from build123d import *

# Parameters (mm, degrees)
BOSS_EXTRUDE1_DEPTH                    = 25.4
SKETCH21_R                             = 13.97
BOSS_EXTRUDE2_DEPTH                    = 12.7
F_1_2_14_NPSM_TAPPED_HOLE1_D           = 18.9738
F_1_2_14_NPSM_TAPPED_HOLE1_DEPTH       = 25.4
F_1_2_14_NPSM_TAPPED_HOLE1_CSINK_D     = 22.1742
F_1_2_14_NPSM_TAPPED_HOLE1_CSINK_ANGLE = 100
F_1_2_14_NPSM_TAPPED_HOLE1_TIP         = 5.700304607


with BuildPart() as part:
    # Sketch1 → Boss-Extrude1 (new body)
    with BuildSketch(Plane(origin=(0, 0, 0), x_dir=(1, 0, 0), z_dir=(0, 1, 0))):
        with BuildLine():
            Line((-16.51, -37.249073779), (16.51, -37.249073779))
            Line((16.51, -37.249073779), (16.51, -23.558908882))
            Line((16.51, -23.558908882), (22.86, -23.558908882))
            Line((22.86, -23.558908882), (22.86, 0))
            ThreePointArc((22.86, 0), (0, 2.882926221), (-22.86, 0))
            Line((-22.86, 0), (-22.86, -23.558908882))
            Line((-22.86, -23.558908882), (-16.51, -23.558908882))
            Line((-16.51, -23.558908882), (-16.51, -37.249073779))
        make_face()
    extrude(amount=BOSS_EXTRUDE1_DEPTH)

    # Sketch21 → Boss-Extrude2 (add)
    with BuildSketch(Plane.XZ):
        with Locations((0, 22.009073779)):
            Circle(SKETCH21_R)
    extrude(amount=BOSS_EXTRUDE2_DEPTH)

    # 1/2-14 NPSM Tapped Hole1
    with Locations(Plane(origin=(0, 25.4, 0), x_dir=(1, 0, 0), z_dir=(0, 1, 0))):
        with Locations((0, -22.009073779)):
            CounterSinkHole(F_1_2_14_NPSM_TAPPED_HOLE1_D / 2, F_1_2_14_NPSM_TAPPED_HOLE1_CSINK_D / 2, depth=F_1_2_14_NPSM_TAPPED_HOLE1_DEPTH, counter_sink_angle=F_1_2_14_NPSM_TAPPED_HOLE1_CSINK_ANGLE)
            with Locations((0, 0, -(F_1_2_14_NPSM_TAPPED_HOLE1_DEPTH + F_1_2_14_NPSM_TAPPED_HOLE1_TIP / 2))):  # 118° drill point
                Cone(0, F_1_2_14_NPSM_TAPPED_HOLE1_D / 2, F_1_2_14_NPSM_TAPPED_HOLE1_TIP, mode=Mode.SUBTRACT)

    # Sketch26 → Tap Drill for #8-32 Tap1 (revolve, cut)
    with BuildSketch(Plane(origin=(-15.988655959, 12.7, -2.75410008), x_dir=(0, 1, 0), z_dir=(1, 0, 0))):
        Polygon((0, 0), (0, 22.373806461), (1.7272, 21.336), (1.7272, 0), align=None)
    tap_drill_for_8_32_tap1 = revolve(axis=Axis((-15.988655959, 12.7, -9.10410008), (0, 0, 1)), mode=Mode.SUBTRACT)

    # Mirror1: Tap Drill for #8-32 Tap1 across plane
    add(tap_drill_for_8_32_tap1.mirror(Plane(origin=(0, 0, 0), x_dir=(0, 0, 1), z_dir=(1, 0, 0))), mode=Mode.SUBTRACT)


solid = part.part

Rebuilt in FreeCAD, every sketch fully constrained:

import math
import FreeCAD as App
import Part
import Sketcher
Q = App.Units.Quantity


def add_polygon(sketch, points):
    """Adds a closed chain of lines whose ends are joined by coincident constraints."""
    first, n = sketch.GeometryCount, len(points)
    for a, b in zip(points, points[1:] + points[:1]):
        sketch.addGeometry(Part.LineSegment(App.Vector(*a, 0), App.Vector(*b, 0)), False)
    for i in range(n):
        sketch.addConstraint(Sketcher.Constraint("Coincident", first + i, 2, first + (i + 1) % n, 1))

doc = App.newDocument("Part")
body = doc.addObject("PartDesign::Body", "Body")

sketch1 = doc.addObject("Sketcher::SketchObject", "Sketch")
body.addObject(sketch1)
sketch1.AttachmentSupport = (doc.XZ_Plane, [""])
sketch1.MapMode = "FlatFace"
sketch1.addGeometry([
    Part.LineSegment(App.Vector(-16.51, 37.249074, 0), App.Vector(16.51, 37.249074, 0)),
    Part.LineSegment(App.Vector(16.51, 37.249074, 0), App.Vector(16.51, 23.558909, 0)),
    Part.LineSegment(App.Vector(16.51, 23.558909, 0), App.Vector(22.86, 23.558909, 0)),
    Part.LineSegment(App.Vector(22.86, 23.558909, 0), App.Vector(22.86, 0, 0)),
    Part.ArcOfCircle(Part.Circle(App.Vector(0, 89.192074, 0), App.Vector(0, 0, 1), 92.075), math.radians(-104.37551), math.radians(-75.62449)),
    Part.LineSegment(App.Vector(-22.86, 0, 0), App.Vector(-22.86, 23.558909, 0)),
    Part.LineSegment(App.Vector(-22.86, 23.558909, 0), App.Vector(-16.51, 23.558909, 0)),
    Part.LineSegment(App.Vector(-16.51, 23.558909, 0), App.Vector(-16.51, 37.249074, 0)),
], False)
sketch1.addConstraint([
    Sketcher.Constraint("Coincident", 0, 2, 1, 1),
    Sketcher.Constraint("Coincident", 1, 2, 2, 1),
    Sketcher.Constraint("Coincident", 2, 2, 3, 1),
    Sketcher.Constraint("Coincident", 3, 2, 4, 2),
    Sketcher.Constraint("Coincident", 4, 1, 5, 1),
    Sketcher.Constraint("Coincident", 5, 2, 6, 1),
    Sketcher.Constraint("Coincident", 6, 2, 7, 1),
    Sketcher.Constraint("Coincident", 7, 2, 0, 1),
    Sketcher.Constraint("Horizontal", 0),
    Sketcher.Constraint("Vertical", 1),
    Sketcher.Constraint("Horizontal", 2),
    Sketcher.Constraint("Vertical", 3),
    Sketcher.Constraint("Vertical", 5),
    Sketcher.Constraint("Horizontal", 6),
    Sketcher.Constraint("Vertical", 7),
    Sketcher.Constraint("Symmetric", 3, 2, 4, 1, -1, 1),
    Sketcher.Constraint("Symmetric", 1, 2, 6, 2, -2),
    Sketcher.Constraint("PointOnObject", 4, 3, -2),
    Sketcher.Constraint("DistanceX", 0, 1, 0, 2, Q("1.3 in")),
    Sketcher.Constraint("Radius", 4, Q("3.625 in")),
    Sketcher.Constraint("DistanceX", 2, 1, 2, 2, Q("0.25 in")),
    Sketcher.Constraint("DistanceY", 0, 2, 4, 3, Q("2.045 in")),
    Sketcher.Constraint("DistanceY", 3, 2, 3, 1, 23.558909),
])
pad1 = doc.addObject("PartDesign::Pad", "Pad")
body.addObject(pad1)
pad1.Profile = sketch1
pad1.Length = Q("1 in")
pad1.Reversed = True

sketch2 = doc.addObject("Sketcher::SketchObject", "Sketch001")
body.addObject(sketch2)
sketch2.AttachmentSupport = (doc.XZ_Plane, [""])
sketch2.MapMode = "FlatFace"
sketch2.addGeometry(Part.Circle(App.Vector(0, 22.009074, 0), App.Vector(0, 0, 1), 13.97), False)
sketch2.addConstraint([
    Sketcher.Constraint("PointOnObject", 0, 3, -2),
    Sketcher.Constraint("Diameter", 0, Q("1.1 in")),
    Sketcher.Constraint("DistanceY", -1, 1, 0, 3, 22.009074),
])
pad2 = doc.addObject("PartDesign::Pad", "Pad001")
body.addObject(pad2)
pad2.Profile = sketch2
pad2.Length = Q("0.5 in")

sketch3 = doc.addObject("Sketcher::SketchObject", "Sketch002")
body.addObject(sketch3)
sketch3.AttachmentSupport = (doc.XZ_Plane, [""])
sketch3.MapMode = "FlatFace"
sketch3.AttachmentOffset = App.Placement(App.Vector(0, 0, -1 * 25.4), App.Rotation())
sketch3.addGeometry(Part.Circle(App.Vector(0, 22.009074, 0), App.Vector(0, 0, 1), 9.4869), False)
sketch3.addConstraint([
    Sketcher.Constraint("PointOnObject", 0, 3, -2),
    Sketcher.Constraint("Diameter", 0, Q("0.747 in")),
    Sketcher.Constraint("DistanceY", -1, 1, 0, 3, 22.009074),
])
doc.recompute()
hole = doc.addObject("PartDesign::Hole", "Hole")
body.addObject(hole)
hole.Profile = sketch3
hole.ThreadType = "None"
hole.Diameter = Q("0.747 in")
hole.DepthType = "Dimension"
hole.Depth = Q("1 in")
hole.DrillPoint = "Angled"
hole.DrillPointAngle = 118
hole.HoleCutType = "Countersink"
hole.HoleCutDiameter = Q("0.873 in")
hole.HoleCutCountersinkAngle = 100
hole.Reversed = True

sketch4 = doc.addObject("Sketcher::SketchObject", "Sketch003")
body.addObject(sketch4)
sketch4.AttachmentSupport = (doc.YZ_Plane, [""])
sketch4.MapMode = "FlatFace"
sketch4.AttachmentOffset = App.Placement(App.Vector(0, 0, -15.988656), App.Rotation())
add_polygon(sketch4, [(12.7, 19.619706), (12.7, -2.7541), (14.4272, -2.7541), (14.4272, 18.5819)])
sketch4.addGeometry(Part.LineSegment(App.Vector(12.7, -2.7541, 0), App.Vector(12.7, 19.619706, 0)), True)
sketch4.addConstraint([
    Sketcher.Constraint("Vertical", 0),
    Sketcher.Constraint("Horizontal", 1),
    Sketcher.Constraint("Vertical", 2),
    Sketcher.Constraint("Vertical", 4),
    Sketcher.Constraint("Coincident", 4, 1, 0, 2),
    Sketcher.Constraint("Equal", 0, 4),
    Sketcher.Constraint("Angle", 3, Q("149 deg")),
    Sketcher.Constraint("DistanceY", 2, 1, 2, 2, Q("0.84 in")),
    Sketcher.Constraint("DistanceX", -1, 1, 0, 2, Q("0.5 in")),
    Sketcher.Constraint("DistanceX", 1, 1, 1, 2, Q("0.068 in")),
    Sketcher.Constraint("DistanceY", 0, 2, -1, 1, 2.7541),
])
groove = doc.addObject("PartDesign::Groove", "Groove")
body.addObject(groove)
groove.Profile = sketch4
groove.ReferenceAxis = (sketch4, ["Axis0"])
groove.Angle = 360
doc.recompute()

mirrored = doc.addObject("PartDesign::Mirrored", "Mirrored")
body.addObject(mirrored)
mirrored.Originals = [groove]
mirrored.MirrorPlane = (doc.YZ_Plane, [""])
body.Tip = mirrored

doc.recompute()
